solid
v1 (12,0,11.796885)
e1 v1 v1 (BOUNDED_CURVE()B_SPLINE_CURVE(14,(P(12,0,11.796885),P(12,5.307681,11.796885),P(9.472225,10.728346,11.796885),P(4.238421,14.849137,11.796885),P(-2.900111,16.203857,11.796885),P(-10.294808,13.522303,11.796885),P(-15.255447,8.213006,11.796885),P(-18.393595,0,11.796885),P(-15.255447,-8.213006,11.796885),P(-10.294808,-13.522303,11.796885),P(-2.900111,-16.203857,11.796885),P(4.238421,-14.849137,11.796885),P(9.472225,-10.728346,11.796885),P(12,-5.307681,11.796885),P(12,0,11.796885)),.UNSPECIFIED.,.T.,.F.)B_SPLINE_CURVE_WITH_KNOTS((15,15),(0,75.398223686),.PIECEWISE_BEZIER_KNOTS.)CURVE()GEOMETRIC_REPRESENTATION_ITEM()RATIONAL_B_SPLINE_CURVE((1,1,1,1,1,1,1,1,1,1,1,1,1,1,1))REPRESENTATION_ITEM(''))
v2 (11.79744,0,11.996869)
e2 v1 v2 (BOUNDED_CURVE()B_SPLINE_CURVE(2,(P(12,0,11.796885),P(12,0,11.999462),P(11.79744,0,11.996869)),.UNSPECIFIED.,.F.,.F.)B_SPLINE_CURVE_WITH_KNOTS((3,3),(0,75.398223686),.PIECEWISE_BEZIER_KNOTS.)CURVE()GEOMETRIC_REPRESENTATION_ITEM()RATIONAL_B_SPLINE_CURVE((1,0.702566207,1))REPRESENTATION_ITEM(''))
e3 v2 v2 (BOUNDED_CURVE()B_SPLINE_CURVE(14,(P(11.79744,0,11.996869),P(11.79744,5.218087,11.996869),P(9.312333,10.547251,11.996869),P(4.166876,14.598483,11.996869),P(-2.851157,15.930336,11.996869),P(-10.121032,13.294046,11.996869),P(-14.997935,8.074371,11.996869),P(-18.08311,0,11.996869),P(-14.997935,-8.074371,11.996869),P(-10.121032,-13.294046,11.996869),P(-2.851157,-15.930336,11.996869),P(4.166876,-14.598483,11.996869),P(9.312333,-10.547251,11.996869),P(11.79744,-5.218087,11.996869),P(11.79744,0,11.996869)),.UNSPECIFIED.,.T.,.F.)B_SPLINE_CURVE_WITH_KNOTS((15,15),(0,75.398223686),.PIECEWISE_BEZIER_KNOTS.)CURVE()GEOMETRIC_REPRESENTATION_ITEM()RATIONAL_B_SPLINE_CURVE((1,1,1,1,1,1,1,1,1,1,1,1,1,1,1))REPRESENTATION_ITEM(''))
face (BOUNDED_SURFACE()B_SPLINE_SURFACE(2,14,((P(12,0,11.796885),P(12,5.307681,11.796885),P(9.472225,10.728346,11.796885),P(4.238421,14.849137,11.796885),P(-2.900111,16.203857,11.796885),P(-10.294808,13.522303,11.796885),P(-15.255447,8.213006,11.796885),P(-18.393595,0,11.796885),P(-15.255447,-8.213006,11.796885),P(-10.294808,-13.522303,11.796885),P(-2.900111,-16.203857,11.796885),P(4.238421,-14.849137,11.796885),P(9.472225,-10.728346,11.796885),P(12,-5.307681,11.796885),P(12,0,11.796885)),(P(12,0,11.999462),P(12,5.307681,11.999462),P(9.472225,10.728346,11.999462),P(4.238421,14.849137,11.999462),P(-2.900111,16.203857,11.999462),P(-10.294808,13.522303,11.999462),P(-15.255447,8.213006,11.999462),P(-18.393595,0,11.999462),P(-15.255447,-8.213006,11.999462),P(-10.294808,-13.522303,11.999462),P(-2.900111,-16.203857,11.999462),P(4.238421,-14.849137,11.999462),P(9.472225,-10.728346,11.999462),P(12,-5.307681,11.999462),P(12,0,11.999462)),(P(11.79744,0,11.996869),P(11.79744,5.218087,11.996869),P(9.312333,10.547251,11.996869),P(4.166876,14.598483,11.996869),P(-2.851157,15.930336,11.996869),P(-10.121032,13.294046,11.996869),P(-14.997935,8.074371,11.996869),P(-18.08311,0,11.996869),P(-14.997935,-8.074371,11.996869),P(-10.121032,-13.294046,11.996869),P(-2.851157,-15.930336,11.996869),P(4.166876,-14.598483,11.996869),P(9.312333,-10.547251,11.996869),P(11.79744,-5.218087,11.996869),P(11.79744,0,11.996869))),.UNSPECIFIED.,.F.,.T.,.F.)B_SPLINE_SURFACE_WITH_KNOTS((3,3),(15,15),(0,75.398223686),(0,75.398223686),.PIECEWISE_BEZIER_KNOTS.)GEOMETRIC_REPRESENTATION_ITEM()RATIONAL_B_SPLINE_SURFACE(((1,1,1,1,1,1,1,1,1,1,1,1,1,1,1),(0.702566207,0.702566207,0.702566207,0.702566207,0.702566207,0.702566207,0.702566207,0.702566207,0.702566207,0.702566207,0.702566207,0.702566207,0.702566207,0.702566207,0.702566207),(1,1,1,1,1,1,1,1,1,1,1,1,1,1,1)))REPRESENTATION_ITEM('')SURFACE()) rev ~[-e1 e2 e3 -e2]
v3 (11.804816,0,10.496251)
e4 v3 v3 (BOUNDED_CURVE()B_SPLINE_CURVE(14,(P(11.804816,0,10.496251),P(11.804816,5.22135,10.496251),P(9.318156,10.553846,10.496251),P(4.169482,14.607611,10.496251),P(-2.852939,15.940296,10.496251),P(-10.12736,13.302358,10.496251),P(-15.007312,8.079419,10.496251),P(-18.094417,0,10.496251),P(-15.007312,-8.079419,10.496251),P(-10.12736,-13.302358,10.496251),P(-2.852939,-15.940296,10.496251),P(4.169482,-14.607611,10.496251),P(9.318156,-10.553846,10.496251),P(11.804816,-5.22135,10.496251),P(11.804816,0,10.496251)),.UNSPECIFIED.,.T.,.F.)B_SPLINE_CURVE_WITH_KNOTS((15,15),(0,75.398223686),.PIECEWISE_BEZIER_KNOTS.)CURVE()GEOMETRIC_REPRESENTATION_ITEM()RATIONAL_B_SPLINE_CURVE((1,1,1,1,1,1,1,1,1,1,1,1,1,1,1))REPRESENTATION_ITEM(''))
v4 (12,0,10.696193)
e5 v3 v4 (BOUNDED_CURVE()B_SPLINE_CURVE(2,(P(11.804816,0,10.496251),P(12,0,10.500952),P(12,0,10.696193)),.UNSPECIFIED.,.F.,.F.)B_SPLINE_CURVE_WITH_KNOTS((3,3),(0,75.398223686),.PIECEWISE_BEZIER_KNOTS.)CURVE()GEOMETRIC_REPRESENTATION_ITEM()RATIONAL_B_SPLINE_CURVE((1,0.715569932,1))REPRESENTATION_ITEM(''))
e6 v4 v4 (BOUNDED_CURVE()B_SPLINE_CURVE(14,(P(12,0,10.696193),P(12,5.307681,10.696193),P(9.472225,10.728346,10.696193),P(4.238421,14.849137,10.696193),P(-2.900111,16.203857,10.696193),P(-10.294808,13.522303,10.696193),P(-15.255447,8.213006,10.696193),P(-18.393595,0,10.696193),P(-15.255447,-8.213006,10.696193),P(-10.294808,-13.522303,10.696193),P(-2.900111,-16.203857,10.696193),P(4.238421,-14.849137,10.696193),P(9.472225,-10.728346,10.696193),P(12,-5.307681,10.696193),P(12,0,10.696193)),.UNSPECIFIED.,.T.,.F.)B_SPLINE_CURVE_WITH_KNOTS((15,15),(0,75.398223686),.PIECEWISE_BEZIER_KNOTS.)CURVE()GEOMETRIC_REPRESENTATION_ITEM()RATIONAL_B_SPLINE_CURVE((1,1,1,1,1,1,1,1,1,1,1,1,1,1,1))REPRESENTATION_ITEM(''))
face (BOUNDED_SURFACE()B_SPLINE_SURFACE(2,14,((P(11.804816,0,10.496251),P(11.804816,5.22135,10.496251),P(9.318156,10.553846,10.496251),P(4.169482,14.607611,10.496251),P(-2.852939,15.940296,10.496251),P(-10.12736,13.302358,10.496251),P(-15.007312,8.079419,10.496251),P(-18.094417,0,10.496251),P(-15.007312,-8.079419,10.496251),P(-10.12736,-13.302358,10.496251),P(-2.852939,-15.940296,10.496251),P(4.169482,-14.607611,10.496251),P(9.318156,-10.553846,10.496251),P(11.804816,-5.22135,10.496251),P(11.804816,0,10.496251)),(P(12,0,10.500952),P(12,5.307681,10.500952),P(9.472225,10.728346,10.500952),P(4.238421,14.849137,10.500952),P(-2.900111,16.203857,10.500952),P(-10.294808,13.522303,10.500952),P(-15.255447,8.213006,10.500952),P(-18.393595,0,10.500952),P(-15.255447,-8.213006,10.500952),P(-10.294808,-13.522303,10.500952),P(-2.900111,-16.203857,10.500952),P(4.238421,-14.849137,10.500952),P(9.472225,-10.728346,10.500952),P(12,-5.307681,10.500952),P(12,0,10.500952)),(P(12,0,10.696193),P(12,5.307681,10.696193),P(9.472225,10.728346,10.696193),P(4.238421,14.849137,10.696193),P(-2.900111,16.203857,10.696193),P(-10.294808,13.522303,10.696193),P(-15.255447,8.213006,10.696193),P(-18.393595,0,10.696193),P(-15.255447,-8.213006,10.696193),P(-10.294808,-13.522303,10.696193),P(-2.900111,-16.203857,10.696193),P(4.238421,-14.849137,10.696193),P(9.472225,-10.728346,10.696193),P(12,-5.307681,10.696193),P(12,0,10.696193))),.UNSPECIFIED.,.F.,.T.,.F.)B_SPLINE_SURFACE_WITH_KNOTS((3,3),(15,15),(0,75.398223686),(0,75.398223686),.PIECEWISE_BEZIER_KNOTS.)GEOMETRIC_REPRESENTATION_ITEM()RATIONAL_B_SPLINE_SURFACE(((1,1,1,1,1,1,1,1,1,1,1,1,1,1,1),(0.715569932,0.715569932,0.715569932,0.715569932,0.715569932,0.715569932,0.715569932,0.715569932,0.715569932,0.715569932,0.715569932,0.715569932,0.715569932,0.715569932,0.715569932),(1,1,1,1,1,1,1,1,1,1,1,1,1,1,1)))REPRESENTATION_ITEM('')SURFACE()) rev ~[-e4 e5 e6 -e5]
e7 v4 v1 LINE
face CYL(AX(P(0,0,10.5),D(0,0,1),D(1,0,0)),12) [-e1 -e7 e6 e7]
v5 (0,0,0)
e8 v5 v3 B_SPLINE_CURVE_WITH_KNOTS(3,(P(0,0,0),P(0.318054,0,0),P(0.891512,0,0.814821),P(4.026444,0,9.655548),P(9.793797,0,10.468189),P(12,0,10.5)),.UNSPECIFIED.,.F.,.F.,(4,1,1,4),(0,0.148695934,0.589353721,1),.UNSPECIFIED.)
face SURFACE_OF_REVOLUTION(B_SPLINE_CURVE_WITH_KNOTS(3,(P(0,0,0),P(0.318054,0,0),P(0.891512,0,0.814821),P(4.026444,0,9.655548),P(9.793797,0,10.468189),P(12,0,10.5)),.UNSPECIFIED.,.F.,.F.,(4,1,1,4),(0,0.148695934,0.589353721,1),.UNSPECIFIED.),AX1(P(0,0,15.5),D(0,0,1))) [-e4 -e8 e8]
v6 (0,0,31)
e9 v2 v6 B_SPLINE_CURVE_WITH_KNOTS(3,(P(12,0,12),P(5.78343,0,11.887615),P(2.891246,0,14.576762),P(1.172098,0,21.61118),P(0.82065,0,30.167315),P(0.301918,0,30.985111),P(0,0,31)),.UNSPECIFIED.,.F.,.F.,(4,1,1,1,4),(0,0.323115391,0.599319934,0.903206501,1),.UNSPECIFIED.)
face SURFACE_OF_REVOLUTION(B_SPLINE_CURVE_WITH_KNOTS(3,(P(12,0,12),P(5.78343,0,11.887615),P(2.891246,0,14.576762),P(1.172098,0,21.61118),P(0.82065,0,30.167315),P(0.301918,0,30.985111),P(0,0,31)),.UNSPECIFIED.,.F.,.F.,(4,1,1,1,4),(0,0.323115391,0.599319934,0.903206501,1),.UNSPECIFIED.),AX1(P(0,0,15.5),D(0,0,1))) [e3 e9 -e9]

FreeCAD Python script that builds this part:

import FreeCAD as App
import Part
import Sketcher
from FreeCAD import Vector


def edges_at(feature, points):
    """Names of the edges that pass closest to the given points."""
    edges = feature.Shape.Edges
    near = lambda p: min(range(len(edges)), key=lambda i: edges[i].distToShape(Part.Vertex(*p))[0])
    return sorted({f"Edge{near(p) + 1}" for p in points})

doc = App.newDocument("Part")
body = doc.addObject("PartDesign::Body", "Body")

sketch1 = doc.addObject("Sketcher::SketchObject", "Sketch")
body.addObject(sketch1)
sketch1.AttachmentSupport = (doc.XZ_Plane, [""])
sketch1.MapMode = "FlatFace"
sketch1.addGeometry([
    Part.LineSegment(Vector(0, 31, 0), Vector(0, 0, 0)),
    Part.BSplineCurve([Vector(0, 0, 0), Vector(0.318054, 0, 0), Vector(0.891512, 0.814821, 0), Vector(4.026444, 9.655548, 0), Vector(9.793797, 10.468189, 0), Vector(12, 10.5, 0)], [4, 1, 1, 4], [0, 0.148695934, 0.589353721, 1], False, 3, [1, 1, 1, 1, 1, 1], False),
    Part.LineSegment(Vector(12, 10.5, 0), Vector(12, 12, 0)),
    Part.BSplineCurve([Vector(12, 12, 0), Vector(5.78343, 11.887615, 0), Vector(2.891246, 14.576762, 0), Vector(1.172098, 21.61118, 0), Vector(0.82065, 30.167315, 0), Vector(0.301918, 30.985111, 0), Vector(0, 31, 0)], [4, 1, 1, 1, 4], [0, 0.323115391, 0.599319934, 0.903206501, 1], False, 3, [1, 1, 1, 1, 1, 1, 1], False),
], False)
sketch1.addConstraint([
    Sketcher.Constraint("Block", 1),
    Sketcher.Constraint("Block", 3),
    Sketcher.Constraint("Coincident", 0, 2, 1, 1),
    Sketcher.Constraint("Coincident", 1, 2, 2, 1),
    Sketcher.Constraint("Coincident", 2, 2, 3, 1),
    Sketcher.Constraint("Coincident", 3, 2, 0, 1),
])
revolution = doc.addObject("PartDesign::Revolution", "Revolution")
body.addObject(revolution)
revolution.Profile = sketch1
revolution.ReferenceAxis = (sketch1, ["V_Axis"])
revolution.Angle = 360
doc.recompute()

fillet = doc.addObject("PartDesign::Fillet", "Fillet")
body.addObject(fillet)
fillet.Base = (revolution, edges_at(revolution, [(-12, 0, 10.5), (-12, 0, 12)]))
fillet.Radius = 0.2

doc.recompute()
